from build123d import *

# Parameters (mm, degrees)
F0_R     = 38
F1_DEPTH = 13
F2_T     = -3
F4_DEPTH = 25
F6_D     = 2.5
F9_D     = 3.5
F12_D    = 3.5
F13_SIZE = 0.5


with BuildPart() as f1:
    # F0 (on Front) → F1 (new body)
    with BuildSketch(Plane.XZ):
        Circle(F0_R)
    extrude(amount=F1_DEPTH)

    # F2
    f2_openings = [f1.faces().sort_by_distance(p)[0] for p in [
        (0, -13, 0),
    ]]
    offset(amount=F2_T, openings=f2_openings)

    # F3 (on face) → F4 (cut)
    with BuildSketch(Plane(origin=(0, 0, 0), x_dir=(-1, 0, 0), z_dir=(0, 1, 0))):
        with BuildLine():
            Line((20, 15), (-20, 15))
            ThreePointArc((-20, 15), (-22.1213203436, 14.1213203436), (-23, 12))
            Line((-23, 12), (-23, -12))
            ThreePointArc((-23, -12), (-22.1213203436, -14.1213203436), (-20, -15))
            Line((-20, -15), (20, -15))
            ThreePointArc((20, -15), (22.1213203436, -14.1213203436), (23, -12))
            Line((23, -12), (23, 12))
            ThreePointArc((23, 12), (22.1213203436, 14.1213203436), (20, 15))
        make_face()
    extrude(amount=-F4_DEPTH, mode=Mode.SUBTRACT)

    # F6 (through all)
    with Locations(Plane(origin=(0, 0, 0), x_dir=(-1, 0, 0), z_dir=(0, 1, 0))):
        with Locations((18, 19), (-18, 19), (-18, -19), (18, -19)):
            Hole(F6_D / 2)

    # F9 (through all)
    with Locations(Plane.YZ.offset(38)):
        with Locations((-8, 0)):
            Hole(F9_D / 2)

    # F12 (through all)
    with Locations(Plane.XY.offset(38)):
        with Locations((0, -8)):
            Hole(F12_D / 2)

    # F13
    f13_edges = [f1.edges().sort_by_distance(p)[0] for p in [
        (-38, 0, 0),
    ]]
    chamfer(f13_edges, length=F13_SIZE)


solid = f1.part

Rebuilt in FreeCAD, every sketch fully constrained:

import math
import FreeCAD as App
import Part
import Sketcher
from FreeCAD import Vector


def edges_at(feature, points):
    """Names of the edges that pass closest to the given points."""
    edges = feature.Shape.Edges
    near = lambda p: min(range(len(edges)), key=lambda i: edges[i].distToShape(Part.Vertex(*p))[0])
    return sorted({f"Edge{near(p) + 1}" for p in points})


def faces_at(feature, points):
    """Names of the faces that lie closest to the given points."""
    faces = feature.Shape.Faces
    near = lambda p: min(range(len(faces)), key=lambda i: faces[i].distToShape(Part.Vertex(*p))[0])
    return sorted({f"Face{near(p) + 1}" for p in points})

doc = App.newDocument("Part")
body = doc.addObject("PartDesign::Body", "Body")

# Sketch on XZ plane
sketch1 = doc.addObject("Sketcher::SketchObject", "Sketch")
body.addObject(sketch1)
sketch1.AttachmentSupport = (doc.XZ_Plane, [""])
sketch1.MapMode = "FlatFace"
sketch1.addGeometry(Part.Circle(Vector(0, 0, 0), Vector(0, 0, 1), 38), False)
sketch1.addConstraint(Sketcher.Constraint("Coincident", 0, 3, -1, 1))
sketch1.addConstraint(Sketcher.Constraint("Diameter", 0, 76.0))
pad1 = doc.addObject("PartDesign::Pad", "Pad")
body.addObject(pad1)
pad1.Profile = sketch1
pad1.Length = 13
doc.recompute()

thickness = doc.addObject("PartDesign::Thickness", "Thickness")
body.addObject(thickness)
thickness.Base = (pad1, faces_at(pad1, [(0, -13, 0)]))
thickness.Value = 3
thickness.Reversed = True
thickness.Join = "Arc"

# Sketch on XZ plane
sketch2 = doc.addObject("Sketcher::SketchObject", "Sketch001")
body.addObject(sketch2)
sketch2.AttachmentSupport = (doc.XZ_Plane, [""])
sketch2.MapMode = "FlatFace"
sketch2.addGeometry(Part.LineSegment(Vector(-20, 15, 0), Vector(20, 15, 0)), False)
sketch2.addGeometry(Part.ArcOfCircle(Part.Circle(Vector(20, 12, 0), Vector(0, 0, 1), 3), math.radians(0), math.radians(90)), False)
sketch2.addGeometry(Part.LineSegment(Vector(23, 12, 0), Vector(23, -12, 0)), False)
sketch2.addGeometry(Part.ArcOfCircle(Part.Circle(Vector(20, -12, 0), Vector(0, 0, 1), 3), math.radians(-90), math.radians(0)), False)
sketch2.addGeometry(Part.LineSegment(Vector(20, -15, 0), Vector(-20, -15, 0)), False)
sketch2.addGeometry(Part.ArcOfCircle(Part.Circle(Vector(-20, -12, 0), Vector(0, 0, 1), 3), math.radians(180), math.radians(270)), False)
sketch2.addGeometry(Part.LineSegment(Vector(-23, -12, 0), Vector(-23, 12, 0)), False)
sketch2.addGeometry(Part.ArcOfCircle(Part.Circle(Vector(-20, 12, 0), Vector(0, 0, 1), 3), math.radians(90), math.radians(180)), False)
sketch2.addConstraint(Sketcher.Constraint("Tangent", 0, 2, 1, 2))
sketch2.addConstraint(Sketcher.Constraint("Tangent", 1, 1, 2, 1))
sketch2.addConstraint(Sketcher.Constraint("Tangent", 2, 2, 3, 2))
sketch2.addConstraint(Sketcher.Constraint("Tangent", 3, 1, 4, 1))
sketch2.addConstraint(Sketcher.Constraint("Tangent", 4, 2, 5, 2))
sketch2.addConstraint(Sketcher.Constraint("Tangent", 5, 1, 6, 1))
sketch2.addConstraint(Sketcher.Constraint("Tangent", 6, 2, 7, 2))
sketch2.addConstraint(Sketcher.Constraint("Tangent", 7, 1, 0, 1))
sketch2.addConstraint(Sketcher.Constraint("Horizontal", 0))
sketch2.addConstraint(Sketcher.Constraint("Vertical", 2))
sketch2.addConstraint(Sketcher.Constraint("Horizontal", 4))
sketch2.addConstraint(Sketcher.Constraint("Vertical", 6))
sketch2.addConstraint(Sketcher.Constraint("Equal", 1, 3))
sketch2.addConstraint(Sketcher.Constraint("Equal", 3, 5))
sketch2.addConstraint(Sketcher.Constraint("Equal", 5, 7))
sketch2.addConstraint(Sketcher.Constraint("Symmetric", 1, 3, 5, 3, -1, 1))
sketch2.addConstraint(Sketcher.Constraint("Radius", 1, 3.0))
sketch2.addConstraint(Sketcher.Constraint("DistanceX", 0, 1, 0, 2, 40.0))
sketch2.addConstraint(Sketcher.Constraint("DistanceY", 2, 2, 2, 1, 24.0))
pocket1 = doc.addObject("PartDesign::Pocket", "Pocket")
body.addObject(pocket1)
pocket1.Profile = sketch2
pocket1.Length = 25
pocket1.Reversed = True

# Sketch on XZ plane
sketch3 = doc.addObject("Sketcher::SketchObject", "Sketch002")
body.addObject(sketch3)
sketch3.AttachmentSupport = (doc.XZ_Plane, [""])
sketch3.MapMode = "FlatFace"
sketch3.addGeometry(Part.Circle(Vector(-18, 19, 0), Vector(0, 0, 1), 1.25), False)
sketch3.addGeometry(Part.Circle(Vector(18, 19, 0), Vector(0, 0, 1), 1.25), False)
sketch3.addGeometry(Part.Circle(Vector(18, -19, 0), Vector(0, 0, 1), 1.25), False)
sketch3.addGeometry(Part.Circle(Vector(-18, -19, 0), Vector(0, 0, 1), 1.25), False)
sketch3.addConstraint(Sketcher.Constraint("Equal", 0, 1))
sketch3.addConstraint(Sketcher.Constraint("Equal", 1, 2))
sketch3.addConstraint(Sketcher.Constraint("Equal", 2, 3))
sketch3.addConstraint(Sketcher.Constraint("Symmetric", 0, 3, 2, 3, -1, 1))
sketch3.addConstraint(Sketcher.Constraint("Symmetric", 1, 3, 3, 3, -1, 1))
sketch3.addConstraint(Sketcher.Constraint("Symmetric", 0, 3, 1, 3, -2))
sketch3.addConstraint(Sketcher.Constraint("Diameter", 0, 2.5))
sketch3.addConstraint(Sketcher.Constraint("DistanceX", 0, 3, -1, 1, 18.0))
sketch3.addConstraint(Sketcher.Constraint("DistanceY", -1, 1, 0, 3, 19.0))
doc.recompute()
hole = doc.addObject("PartDesign::Hole", "Hole")
body.addObject(hole)
hole.Profile = sketch3
hole.ThreadType = "None"
hole.Diameter = 2.5
hole.DepthType = "ThroughAll"
hole.Reversed = True

# Sketch on YZ plane
sketch4 = doc.addObject("Sketcher::SketchObject", "Sketch003")
body.addObject(sketch4)
sketch4.AttachmentSupport = (doc.YZ_Plane, [""])
sketch4.MapMode = "FlatFace"
sketch4.AttachmentOffset = App.Placement(Vector(0, 0, 38), App.Rotation())
sketch4.addGeometry(Part.Circle(Vector(-8, 0, 0), Vector(0, 0, 1), 1.75), False)
sketch4.addConstraint(Sketcher.Constraint("PointOnObject", 0, 3, -1))
sketch4.addConstraint(Sketcher.Constraint("Diameter", 0, 3.5))
sketch4.addConstraint(Sketcher.Constraint("DistanceX", 0, 3, -1, 1, 8.0))
doc.recompute()
hole2 = doc.addObject("PartDesign::Hole", "Hole001")
body.addObject(hole2)
hole2.Profile = sketch4
hole2.ThreadType = "None"
hole2.Diameter = 3.5
hole2.DepthType = "ThroughAll"

# Sketch on XY plane
sketch5 = doc.addObject("Sketcher::SketchObject", "Sketch004")
body.addObject(sketch5)
sketch5.AttachmentSupport = (doc.XY_Plane, [""])
sketch5.MapMode = "FlatFace"
sketch5.AttachmentOffset = App.Placement(Vector(0, 0, 38), App.Rotation())
sketch5.addGeometry(Part.Circle(Vector(0, -8, 0), Vector(0, 0, 1), 1.75), False)
sketch5.addConstraint(Sketcher.Constraint("PointOnObject", 0, 3, -2))
sketch5.addConstraint(Sketcher.Constraint("Diameter", 0, 3.5))
sketch5.addConstraint(Sketcher.Constraint("DistanceY", 0, 3, -1, 1, 8.0))
doc.recompute()
hole3 = doc.addObject("PartDesign::Hole", "Hole002")
body.addObject(hole3)
hole3.Profile = sketch5
hole3.ThreadType = "None"
hole3.Diameter = 3.5
hole3.DepthType = "ThroughAll"
doc.recompute()

chamfer = doc.addObject("PartDesign::Chamfer", "Chamfer")
body.addObject(chamfer)
chamfer.Base = (hole3, edges_at(hole3, [(-38, 0, 0)]))
chamfer.Size = 0.5

doc.recompute()
